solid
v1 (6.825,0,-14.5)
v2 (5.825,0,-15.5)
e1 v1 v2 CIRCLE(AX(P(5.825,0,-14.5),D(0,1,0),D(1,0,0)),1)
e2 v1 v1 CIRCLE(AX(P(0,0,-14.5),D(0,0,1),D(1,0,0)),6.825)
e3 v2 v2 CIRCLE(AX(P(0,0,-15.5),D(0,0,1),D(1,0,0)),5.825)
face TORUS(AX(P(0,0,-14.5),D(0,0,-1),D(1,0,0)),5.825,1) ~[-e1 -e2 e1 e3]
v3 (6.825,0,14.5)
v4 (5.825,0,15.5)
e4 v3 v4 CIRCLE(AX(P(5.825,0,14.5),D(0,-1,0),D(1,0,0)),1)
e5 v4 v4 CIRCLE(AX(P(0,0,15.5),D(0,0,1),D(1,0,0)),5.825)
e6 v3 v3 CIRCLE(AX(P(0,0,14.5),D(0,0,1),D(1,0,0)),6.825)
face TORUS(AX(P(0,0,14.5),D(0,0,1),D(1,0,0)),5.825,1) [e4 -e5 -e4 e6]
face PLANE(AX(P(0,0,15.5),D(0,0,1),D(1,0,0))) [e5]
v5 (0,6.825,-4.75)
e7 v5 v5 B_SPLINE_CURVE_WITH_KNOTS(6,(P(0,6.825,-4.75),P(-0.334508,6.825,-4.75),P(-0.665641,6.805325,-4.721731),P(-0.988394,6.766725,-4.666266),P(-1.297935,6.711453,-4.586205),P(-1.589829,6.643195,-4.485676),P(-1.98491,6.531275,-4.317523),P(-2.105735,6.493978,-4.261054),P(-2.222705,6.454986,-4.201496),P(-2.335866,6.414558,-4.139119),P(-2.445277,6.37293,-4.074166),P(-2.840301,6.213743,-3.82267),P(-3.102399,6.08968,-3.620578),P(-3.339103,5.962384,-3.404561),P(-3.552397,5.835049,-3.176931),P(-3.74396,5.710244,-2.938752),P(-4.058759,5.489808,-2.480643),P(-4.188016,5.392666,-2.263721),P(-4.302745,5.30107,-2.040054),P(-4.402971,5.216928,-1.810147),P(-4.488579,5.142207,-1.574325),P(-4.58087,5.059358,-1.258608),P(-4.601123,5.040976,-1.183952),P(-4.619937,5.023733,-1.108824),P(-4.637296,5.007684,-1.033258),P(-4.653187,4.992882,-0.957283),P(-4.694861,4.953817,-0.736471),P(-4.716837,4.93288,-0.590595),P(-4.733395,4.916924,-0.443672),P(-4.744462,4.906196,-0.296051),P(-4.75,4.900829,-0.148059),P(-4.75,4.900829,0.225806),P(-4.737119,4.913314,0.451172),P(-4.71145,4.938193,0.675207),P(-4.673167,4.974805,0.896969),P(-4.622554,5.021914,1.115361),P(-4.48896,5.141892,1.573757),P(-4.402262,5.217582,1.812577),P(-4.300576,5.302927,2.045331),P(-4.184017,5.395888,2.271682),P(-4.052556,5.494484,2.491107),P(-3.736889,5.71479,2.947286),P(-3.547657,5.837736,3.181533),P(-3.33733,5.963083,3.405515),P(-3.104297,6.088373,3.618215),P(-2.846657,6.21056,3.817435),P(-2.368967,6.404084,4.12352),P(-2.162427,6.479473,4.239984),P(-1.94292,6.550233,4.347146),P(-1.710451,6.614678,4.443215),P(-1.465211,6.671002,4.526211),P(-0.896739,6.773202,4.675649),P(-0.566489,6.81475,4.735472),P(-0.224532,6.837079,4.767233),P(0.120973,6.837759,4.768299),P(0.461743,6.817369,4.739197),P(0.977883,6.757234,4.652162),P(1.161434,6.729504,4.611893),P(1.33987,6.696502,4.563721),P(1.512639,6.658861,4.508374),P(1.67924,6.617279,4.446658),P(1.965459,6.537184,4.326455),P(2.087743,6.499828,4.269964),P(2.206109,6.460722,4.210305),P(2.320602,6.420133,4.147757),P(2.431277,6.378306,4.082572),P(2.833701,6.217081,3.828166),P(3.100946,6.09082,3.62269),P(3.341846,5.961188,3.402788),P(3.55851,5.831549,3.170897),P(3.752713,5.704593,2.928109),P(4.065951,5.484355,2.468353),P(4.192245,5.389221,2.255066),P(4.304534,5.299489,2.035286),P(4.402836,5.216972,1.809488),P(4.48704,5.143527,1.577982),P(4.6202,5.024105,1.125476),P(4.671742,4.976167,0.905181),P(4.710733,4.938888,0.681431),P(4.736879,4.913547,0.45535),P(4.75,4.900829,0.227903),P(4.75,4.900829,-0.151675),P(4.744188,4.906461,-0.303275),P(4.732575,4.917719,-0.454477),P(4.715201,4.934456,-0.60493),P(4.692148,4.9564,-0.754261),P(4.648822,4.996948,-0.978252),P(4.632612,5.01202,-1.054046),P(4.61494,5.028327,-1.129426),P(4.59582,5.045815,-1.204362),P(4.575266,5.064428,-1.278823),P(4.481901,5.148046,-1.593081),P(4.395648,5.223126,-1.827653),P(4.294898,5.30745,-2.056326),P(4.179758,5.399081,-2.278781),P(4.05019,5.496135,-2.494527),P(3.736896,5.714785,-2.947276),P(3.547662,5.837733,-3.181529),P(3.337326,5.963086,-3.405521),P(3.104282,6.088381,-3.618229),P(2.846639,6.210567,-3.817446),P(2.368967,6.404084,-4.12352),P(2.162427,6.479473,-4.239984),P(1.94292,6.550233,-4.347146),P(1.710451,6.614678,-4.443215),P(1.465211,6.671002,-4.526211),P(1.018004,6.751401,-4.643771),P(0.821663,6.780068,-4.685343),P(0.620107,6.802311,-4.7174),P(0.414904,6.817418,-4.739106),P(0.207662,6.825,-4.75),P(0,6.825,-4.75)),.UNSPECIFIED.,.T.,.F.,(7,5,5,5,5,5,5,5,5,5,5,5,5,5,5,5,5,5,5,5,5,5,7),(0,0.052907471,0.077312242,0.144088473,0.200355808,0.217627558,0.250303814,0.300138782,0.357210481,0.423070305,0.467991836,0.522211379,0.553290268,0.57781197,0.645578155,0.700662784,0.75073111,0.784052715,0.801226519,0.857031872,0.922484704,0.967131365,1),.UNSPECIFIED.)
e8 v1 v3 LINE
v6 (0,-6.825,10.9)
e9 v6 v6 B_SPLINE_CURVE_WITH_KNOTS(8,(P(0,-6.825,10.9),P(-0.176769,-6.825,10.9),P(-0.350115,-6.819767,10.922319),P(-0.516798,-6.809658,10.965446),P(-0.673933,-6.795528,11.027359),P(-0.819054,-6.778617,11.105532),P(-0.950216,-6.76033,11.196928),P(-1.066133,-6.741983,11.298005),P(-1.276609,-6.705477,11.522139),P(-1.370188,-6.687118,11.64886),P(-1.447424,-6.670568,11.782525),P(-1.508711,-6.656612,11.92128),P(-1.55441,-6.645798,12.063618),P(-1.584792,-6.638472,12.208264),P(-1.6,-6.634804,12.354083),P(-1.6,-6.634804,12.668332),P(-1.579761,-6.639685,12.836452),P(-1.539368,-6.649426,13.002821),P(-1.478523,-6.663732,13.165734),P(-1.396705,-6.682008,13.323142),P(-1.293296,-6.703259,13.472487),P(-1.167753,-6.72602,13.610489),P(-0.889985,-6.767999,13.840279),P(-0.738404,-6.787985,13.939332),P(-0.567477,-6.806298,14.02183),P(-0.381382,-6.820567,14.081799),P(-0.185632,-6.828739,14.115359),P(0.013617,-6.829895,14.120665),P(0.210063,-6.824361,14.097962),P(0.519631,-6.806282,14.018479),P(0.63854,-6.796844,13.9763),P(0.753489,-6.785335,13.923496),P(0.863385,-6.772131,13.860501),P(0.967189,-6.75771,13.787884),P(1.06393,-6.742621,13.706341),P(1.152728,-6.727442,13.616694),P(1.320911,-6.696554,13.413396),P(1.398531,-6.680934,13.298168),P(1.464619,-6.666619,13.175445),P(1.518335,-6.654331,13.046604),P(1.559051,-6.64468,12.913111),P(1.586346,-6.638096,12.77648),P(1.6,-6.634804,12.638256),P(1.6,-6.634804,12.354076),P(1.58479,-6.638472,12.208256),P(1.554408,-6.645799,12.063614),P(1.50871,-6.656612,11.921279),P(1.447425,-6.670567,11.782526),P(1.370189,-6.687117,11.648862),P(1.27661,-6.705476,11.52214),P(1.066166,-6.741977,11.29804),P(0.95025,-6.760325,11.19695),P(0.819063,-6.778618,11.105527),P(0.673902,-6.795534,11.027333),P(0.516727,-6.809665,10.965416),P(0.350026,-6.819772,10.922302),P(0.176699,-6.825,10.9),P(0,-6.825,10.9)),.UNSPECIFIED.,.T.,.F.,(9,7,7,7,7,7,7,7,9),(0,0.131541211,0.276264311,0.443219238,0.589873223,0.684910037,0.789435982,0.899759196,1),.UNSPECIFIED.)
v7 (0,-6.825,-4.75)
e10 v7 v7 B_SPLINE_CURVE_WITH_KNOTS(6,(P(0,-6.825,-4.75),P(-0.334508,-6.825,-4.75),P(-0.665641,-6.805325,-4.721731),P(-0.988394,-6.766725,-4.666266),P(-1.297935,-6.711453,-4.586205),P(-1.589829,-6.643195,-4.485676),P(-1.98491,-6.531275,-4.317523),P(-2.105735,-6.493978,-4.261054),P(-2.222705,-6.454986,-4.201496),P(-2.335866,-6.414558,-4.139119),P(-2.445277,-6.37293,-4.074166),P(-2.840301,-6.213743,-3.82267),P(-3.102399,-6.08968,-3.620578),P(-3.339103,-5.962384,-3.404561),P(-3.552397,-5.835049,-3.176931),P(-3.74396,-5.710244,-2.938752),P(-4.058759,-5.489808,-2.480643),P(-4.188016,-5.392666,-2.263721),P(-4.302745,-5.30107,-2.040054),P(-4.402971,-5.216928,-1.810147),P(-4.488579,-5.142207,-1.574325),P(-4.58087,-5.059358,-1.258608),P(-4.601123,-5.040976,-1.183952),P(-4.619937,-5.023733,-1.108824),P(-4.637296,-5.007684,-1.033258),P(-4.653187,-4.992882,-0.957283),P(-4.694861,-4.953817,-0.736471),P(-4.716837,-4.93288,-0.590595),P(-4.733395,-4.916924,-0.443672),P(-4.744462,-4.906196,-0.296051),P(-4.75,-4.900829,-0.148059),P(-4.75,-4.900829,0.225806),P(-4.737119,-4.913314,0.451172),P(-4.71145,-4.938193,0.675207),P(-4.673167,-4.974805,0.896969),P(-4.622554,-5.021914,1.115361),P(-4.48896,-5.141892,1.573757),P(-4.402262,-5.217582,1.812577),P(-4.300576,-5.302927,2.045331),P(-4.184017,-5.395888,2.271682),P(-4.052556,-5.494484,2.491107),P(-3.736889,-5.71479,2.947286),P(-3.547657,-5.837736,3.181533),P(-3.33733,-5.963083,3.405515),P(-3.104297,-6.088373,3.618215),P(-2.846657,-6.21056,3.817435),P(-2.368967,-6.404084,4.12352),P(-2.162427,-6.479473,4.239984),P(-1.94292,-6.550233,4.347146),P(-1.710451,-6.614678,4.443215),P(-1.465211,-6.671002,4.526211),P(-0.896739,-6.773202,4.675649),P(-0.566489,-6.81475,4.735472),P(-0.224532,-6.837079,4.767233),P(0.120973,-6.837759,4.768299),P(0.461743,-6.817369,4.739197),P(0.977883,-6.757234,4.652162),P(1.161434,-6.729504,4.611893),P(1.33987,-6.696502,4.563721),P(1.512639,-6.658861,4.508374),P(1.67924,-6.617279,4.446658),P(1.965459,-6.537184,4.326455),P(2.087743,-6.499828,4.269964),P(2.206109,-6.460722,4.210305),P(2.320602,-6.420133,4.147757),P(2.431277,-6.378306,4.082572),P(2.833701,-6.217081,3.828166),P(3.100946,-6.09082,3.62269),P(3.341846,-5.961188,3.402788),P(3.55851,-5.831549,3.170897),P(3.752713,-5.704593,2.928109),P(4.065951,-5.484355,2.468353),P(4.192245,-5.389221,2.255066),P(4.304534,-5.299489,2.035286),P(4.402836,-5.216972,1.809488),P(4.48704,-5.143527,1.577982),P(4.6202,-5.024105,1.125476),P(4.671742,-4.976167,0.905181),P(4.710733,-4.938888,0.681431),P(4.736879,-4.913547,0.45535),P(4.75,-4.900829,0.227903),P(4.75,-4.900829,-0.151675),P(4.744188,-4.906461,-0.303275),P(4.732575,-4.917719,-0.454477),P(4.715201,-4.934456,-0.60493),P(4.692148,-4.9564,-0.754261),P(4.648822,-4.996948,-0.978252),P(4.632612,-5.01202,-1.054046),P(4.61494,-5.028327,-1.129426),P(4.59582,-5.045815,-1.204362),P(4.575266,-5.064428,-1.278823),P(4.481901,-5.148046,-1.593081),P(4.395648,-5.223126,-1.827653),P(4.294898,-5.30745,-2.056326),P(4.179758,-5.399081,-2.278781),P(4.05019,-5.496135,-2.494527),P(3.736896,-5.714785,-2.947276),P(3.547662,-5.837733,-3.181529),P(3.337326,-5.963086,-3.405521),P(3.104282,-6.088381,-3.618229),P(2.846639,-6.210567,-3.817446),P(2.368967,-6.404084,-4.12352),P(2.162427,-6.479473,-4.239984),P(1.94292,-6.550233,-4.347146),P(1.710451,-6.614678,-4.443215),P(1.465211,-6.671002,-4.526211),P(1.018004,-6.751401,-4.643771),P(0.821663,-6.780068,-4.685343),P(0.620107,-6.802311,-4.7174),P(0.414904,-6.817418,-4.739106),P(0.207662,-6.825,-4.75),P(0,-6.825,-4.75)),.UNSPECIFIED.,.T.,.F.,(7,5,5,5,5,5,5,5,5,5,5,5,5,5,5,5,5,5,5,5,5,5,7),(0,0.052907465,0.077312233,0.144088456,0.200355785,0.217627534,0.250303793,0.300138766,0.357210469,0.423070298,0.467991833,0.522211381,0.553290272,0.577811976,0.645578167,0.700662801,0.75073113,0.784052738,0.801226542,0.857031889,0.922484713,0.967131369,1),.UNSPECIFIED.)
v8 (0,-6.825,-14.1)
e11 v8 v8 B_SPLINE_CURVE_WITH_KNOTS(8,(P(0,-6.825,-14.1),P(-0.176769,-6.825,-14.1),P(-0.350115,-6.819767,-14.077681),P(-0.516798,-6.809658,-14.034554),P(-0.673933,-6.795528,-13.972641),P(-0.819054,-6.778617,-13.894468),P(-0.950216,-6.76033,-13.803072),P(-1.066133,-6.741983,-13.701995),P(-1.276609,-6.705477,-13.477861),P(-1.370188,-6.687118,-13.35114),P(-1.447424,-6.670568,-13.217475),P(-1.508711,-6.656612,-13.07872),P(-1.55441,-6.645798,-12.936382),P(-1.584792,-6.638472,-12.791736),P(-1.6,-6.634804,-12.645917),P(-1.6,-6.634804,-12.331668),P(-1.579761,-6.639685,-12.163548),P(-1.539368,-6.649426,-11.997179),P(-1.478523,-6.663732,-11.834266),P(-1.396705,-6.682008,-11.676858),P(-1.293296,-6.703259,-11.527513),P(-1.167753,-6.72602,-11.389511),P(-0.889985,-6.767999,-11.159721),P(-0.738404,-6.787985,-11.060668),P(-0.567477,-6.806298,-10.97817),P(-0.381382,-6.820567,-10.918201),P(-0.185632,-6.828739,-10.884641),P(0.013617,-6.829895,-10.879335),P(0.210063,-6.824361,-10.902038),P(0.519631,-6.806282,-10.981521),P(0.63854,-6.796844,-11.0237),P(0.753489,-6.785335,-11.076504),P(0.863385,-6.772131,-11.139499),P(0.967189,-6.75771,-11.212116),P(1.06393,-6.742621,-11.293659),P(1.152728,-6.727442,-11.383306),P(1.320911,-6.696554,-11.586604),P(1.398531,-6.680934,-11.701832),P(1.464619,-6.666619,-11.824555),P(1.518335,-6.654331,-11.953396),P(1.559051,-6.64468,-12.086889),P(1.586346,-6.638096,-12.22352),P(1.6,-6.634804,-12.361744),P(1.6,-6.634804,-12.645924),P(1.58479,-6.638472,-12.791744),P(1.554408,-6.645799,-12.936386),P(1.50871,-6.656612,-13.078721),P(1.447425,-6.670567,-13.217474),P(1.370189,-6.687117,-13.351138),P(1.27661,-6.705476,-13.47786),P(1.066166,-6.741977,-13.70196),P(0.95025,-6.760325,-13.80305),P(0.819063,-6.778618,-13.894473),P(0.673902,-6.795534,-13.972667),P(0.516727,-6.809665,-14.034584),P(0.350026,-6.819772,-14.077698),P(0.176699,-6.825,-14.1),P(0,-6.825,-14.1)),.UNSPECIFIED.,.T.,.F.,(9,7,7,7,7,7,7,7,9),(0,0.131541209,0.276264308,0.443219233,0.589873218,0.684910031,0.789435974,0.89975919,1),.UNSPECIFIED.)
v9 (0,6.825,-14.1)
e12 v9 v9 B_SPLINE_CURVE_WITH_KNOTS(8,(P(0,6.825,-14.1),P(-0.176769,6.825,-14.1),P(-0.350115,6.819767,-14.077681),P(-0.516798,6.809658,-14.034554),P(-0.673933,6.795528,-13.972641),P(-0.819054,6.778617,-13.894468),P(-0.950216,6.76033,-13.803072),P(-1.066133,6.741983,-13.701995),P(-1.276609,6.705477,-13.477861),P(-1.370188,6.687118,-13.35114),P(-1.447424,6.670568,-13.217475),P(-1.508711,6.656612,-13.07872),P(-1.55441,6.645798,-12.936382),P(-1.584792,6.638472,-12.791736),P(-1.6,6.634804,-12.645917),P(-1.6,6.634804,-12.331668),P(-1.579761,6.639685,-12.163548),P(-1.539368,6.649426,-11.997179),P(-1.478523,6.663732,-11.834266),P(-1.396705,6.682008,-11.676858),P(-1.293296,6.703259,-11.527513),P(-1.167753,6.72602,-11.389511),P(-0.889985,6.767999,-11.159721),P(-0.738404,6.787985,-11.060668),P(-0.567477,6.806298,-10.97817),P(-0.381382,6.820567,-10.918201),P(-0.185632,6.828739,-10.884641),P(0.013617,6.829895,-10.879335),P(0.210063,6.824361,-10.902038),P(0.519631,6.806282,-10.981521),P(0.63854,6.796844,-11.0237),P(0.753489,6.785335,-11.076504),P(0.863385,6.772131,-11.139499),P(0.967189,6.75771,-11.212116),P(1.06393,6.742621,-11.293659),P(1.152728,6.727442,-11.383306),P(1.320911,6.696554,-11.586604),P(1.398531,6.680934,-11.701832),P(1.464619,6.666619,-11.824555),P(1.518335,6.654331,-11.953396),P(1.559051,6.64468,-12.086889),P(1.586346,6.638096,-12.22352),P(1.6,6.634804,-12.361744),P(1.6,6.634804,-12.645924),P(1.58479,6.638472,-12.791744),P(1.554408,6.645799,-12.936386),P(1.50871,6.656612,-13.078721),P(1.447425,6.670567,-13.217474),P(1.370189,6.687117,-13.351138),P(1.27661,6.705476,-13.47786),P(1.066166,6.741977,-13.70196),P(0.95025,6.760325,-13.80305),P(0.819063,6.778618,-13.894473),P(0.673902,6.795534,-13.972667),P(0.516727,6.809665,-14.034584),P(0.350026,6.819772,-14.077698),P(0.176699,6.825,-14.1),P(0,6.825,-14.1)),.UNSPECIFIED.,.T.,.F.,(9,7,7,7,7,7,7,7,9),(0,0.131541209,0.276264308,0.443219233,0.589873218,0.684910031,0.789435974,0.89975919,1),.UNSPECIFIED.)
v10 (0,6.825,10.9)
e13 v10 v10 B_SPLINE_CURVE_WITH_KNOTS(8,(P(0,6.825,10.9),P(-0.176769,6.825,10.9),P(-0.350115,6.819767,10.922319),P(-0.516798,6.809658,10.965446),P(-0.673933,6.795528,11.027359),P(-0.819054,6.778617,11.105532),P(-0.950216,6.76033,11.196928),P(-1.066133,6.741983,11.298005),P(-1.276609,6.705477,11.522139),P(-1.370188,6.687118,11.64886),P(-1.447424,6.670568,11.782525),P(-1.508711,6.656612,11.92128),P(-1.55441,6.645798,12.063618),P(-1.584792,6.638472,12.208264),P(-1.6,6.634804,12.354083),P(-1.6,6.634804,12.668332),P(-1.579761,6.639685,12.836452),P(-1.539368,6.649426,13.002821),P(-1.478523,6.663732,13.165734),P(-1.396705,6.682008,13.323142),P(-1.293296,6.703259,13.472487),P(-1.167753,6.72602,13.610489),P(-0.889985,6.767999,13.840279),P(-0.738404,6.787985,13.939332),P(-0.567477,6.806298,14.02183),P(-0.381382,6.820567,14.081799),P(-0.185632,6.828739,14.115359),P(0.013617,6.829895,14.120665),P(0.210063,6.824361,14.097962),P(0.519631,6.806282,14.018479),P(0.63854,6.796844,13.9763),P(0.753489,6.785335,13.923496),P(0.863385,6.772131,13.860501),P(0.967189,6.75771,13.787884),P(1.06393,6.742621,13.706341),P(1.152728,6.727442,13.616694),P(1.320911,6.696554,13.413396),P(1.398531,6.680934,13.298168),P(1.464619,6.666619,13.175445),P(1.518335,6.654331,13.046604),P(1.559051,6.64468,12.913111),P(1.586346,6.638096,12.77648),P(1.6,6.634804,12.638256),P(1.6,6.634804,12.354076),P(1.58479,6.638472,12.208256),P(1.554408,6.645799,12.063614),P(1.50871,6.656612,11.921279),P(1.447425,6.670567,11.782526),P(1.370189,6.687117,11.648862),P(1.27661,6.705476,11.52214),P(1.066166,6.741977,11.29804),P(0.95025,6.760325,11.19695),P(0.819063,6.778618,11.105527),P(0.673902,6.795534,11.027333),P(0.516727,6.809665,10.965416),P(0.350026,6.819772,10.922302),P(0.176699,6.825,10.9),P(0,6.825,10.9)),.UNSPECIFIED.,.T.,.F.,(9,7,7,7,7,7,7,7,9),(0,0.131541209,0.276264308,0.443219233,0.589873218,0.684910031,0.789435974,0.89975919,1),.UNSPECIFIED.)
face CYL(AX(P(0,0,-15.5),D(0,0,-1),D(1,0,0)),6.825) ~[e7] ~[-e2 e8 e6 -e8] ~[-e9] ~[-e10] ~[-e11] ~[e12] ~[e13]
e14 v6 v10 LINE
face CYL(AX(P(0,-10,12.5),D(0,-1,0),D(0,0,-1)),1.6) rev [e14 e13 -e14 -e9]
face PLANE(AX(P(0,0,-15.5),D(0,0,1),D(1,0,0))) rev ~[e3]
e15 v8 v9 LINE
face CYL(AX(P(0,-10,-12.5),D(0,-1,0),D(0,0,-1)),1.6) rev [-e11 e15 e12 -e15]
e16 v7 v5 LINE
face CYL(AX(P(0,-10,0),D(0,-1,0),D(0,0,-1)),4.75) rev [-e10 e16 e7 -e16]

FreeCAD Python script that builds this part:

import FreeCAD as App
import Part
import Sketcher


def edges_at(feature, points):
    """Names of the edges that pass closest to the given points."""
    edges = feature.Shape.Edges
    near = lambda p: min(range(len(edges)), key=lambda i: edges[i].distToShape(Part.Vertex(*p))[0])
    return sorted({f"Edge{near(p) + 1}" for p in points})

doc = App.newDocument("Part")
body = doc.addObject("PartDesign::Body", "Body")

# Sketch on XY plane
sketch1 = body.newObject("Sketcher::SketchObject", "Sketch")
sketch1.AttachmentSupport = (doc.getObject("XY_Plane"), [""])
sketch1.MapMode = "FlatFace"
sketch1.addGeometry(Part.Circle(App.Vector(0, 0, 0), App.Vector(0, 0, 1), 7), False)
sketch1.addConstraint(Sketcher.Constraint("Coincident", 0, 3, -1, 1))
sketch1.addConstraint(Sketcher.Constraint("Diameter", 0, 13.65))
pad1 = body.newObject("PartDesign::Pad", "Pad")
pad1.Profile = sketch1
pad1.Type = "TwoLengths"
pad1.Length = 15.5
pad1.Length2 = 15.5

# Sketch on XZ plane
sketch2 = body.newObject("Sketcher::SketchObject", "Sketch001")
sketch2.AttachmentSupport = (doc.getObject("XZ_Plane"), [""])
sketch2.MapMode = "FlatFace"
sketch2.addGeometry(Part.Circle(App.Vector(0, 0, 0), App.Vector(0, 0, 1), 4.8), False)
sketch2.addGeometry(Part.Circle(App.Vector(0, 12.5, 0), App.Vector(0, 0, 1), 1.6), False)
sketch2.addGeometry(Part.Circle(App.Vector(0, -12.5, 0), App.Vector(0, 0, 1), 1.6), False)
sketch2.addConstraint(Sketcher.Constraint("Coincident", 0, 3, -1, 1))
sketch2.addConstraint(Sketcher.Constraint("Equal", 1, 2))
sketch2.addConstraint(Sketcher.Constraint("Symmetric", 1, 3, 2, 3, -1, 1))
sketch2.addConstraint(Sketcher.Constraint("PointOnObject", 1, 3, -2))
sketch2.addConstraint(Sketcher.Constraint("Diameter", 0, 9.5))
sketch2.addConstraint(Sketcher.Constraint("Diameter", 1, 3.2))
sketch2.addConstraint(Sketcher.Constraint("DistanceY", 2, 3, 1, 3, 25.0))
pocket1 = body.newObject("PartDesign::Pocket", "Pocket")
pocket1.Profile = sketch2
pocket1.Type = "ThroughAll"
pocket1.Midplane = True
doc.recompute()

fillet = body.newObject("PartDesign::Fillet", "Fillet")
fillet.Base = (pocket1, edges_at(pocket1, [(-6.825, 0, 15.5), (-6.825, 0, -15.5)]))
fillet.Radius = 1

doc.recompute()
